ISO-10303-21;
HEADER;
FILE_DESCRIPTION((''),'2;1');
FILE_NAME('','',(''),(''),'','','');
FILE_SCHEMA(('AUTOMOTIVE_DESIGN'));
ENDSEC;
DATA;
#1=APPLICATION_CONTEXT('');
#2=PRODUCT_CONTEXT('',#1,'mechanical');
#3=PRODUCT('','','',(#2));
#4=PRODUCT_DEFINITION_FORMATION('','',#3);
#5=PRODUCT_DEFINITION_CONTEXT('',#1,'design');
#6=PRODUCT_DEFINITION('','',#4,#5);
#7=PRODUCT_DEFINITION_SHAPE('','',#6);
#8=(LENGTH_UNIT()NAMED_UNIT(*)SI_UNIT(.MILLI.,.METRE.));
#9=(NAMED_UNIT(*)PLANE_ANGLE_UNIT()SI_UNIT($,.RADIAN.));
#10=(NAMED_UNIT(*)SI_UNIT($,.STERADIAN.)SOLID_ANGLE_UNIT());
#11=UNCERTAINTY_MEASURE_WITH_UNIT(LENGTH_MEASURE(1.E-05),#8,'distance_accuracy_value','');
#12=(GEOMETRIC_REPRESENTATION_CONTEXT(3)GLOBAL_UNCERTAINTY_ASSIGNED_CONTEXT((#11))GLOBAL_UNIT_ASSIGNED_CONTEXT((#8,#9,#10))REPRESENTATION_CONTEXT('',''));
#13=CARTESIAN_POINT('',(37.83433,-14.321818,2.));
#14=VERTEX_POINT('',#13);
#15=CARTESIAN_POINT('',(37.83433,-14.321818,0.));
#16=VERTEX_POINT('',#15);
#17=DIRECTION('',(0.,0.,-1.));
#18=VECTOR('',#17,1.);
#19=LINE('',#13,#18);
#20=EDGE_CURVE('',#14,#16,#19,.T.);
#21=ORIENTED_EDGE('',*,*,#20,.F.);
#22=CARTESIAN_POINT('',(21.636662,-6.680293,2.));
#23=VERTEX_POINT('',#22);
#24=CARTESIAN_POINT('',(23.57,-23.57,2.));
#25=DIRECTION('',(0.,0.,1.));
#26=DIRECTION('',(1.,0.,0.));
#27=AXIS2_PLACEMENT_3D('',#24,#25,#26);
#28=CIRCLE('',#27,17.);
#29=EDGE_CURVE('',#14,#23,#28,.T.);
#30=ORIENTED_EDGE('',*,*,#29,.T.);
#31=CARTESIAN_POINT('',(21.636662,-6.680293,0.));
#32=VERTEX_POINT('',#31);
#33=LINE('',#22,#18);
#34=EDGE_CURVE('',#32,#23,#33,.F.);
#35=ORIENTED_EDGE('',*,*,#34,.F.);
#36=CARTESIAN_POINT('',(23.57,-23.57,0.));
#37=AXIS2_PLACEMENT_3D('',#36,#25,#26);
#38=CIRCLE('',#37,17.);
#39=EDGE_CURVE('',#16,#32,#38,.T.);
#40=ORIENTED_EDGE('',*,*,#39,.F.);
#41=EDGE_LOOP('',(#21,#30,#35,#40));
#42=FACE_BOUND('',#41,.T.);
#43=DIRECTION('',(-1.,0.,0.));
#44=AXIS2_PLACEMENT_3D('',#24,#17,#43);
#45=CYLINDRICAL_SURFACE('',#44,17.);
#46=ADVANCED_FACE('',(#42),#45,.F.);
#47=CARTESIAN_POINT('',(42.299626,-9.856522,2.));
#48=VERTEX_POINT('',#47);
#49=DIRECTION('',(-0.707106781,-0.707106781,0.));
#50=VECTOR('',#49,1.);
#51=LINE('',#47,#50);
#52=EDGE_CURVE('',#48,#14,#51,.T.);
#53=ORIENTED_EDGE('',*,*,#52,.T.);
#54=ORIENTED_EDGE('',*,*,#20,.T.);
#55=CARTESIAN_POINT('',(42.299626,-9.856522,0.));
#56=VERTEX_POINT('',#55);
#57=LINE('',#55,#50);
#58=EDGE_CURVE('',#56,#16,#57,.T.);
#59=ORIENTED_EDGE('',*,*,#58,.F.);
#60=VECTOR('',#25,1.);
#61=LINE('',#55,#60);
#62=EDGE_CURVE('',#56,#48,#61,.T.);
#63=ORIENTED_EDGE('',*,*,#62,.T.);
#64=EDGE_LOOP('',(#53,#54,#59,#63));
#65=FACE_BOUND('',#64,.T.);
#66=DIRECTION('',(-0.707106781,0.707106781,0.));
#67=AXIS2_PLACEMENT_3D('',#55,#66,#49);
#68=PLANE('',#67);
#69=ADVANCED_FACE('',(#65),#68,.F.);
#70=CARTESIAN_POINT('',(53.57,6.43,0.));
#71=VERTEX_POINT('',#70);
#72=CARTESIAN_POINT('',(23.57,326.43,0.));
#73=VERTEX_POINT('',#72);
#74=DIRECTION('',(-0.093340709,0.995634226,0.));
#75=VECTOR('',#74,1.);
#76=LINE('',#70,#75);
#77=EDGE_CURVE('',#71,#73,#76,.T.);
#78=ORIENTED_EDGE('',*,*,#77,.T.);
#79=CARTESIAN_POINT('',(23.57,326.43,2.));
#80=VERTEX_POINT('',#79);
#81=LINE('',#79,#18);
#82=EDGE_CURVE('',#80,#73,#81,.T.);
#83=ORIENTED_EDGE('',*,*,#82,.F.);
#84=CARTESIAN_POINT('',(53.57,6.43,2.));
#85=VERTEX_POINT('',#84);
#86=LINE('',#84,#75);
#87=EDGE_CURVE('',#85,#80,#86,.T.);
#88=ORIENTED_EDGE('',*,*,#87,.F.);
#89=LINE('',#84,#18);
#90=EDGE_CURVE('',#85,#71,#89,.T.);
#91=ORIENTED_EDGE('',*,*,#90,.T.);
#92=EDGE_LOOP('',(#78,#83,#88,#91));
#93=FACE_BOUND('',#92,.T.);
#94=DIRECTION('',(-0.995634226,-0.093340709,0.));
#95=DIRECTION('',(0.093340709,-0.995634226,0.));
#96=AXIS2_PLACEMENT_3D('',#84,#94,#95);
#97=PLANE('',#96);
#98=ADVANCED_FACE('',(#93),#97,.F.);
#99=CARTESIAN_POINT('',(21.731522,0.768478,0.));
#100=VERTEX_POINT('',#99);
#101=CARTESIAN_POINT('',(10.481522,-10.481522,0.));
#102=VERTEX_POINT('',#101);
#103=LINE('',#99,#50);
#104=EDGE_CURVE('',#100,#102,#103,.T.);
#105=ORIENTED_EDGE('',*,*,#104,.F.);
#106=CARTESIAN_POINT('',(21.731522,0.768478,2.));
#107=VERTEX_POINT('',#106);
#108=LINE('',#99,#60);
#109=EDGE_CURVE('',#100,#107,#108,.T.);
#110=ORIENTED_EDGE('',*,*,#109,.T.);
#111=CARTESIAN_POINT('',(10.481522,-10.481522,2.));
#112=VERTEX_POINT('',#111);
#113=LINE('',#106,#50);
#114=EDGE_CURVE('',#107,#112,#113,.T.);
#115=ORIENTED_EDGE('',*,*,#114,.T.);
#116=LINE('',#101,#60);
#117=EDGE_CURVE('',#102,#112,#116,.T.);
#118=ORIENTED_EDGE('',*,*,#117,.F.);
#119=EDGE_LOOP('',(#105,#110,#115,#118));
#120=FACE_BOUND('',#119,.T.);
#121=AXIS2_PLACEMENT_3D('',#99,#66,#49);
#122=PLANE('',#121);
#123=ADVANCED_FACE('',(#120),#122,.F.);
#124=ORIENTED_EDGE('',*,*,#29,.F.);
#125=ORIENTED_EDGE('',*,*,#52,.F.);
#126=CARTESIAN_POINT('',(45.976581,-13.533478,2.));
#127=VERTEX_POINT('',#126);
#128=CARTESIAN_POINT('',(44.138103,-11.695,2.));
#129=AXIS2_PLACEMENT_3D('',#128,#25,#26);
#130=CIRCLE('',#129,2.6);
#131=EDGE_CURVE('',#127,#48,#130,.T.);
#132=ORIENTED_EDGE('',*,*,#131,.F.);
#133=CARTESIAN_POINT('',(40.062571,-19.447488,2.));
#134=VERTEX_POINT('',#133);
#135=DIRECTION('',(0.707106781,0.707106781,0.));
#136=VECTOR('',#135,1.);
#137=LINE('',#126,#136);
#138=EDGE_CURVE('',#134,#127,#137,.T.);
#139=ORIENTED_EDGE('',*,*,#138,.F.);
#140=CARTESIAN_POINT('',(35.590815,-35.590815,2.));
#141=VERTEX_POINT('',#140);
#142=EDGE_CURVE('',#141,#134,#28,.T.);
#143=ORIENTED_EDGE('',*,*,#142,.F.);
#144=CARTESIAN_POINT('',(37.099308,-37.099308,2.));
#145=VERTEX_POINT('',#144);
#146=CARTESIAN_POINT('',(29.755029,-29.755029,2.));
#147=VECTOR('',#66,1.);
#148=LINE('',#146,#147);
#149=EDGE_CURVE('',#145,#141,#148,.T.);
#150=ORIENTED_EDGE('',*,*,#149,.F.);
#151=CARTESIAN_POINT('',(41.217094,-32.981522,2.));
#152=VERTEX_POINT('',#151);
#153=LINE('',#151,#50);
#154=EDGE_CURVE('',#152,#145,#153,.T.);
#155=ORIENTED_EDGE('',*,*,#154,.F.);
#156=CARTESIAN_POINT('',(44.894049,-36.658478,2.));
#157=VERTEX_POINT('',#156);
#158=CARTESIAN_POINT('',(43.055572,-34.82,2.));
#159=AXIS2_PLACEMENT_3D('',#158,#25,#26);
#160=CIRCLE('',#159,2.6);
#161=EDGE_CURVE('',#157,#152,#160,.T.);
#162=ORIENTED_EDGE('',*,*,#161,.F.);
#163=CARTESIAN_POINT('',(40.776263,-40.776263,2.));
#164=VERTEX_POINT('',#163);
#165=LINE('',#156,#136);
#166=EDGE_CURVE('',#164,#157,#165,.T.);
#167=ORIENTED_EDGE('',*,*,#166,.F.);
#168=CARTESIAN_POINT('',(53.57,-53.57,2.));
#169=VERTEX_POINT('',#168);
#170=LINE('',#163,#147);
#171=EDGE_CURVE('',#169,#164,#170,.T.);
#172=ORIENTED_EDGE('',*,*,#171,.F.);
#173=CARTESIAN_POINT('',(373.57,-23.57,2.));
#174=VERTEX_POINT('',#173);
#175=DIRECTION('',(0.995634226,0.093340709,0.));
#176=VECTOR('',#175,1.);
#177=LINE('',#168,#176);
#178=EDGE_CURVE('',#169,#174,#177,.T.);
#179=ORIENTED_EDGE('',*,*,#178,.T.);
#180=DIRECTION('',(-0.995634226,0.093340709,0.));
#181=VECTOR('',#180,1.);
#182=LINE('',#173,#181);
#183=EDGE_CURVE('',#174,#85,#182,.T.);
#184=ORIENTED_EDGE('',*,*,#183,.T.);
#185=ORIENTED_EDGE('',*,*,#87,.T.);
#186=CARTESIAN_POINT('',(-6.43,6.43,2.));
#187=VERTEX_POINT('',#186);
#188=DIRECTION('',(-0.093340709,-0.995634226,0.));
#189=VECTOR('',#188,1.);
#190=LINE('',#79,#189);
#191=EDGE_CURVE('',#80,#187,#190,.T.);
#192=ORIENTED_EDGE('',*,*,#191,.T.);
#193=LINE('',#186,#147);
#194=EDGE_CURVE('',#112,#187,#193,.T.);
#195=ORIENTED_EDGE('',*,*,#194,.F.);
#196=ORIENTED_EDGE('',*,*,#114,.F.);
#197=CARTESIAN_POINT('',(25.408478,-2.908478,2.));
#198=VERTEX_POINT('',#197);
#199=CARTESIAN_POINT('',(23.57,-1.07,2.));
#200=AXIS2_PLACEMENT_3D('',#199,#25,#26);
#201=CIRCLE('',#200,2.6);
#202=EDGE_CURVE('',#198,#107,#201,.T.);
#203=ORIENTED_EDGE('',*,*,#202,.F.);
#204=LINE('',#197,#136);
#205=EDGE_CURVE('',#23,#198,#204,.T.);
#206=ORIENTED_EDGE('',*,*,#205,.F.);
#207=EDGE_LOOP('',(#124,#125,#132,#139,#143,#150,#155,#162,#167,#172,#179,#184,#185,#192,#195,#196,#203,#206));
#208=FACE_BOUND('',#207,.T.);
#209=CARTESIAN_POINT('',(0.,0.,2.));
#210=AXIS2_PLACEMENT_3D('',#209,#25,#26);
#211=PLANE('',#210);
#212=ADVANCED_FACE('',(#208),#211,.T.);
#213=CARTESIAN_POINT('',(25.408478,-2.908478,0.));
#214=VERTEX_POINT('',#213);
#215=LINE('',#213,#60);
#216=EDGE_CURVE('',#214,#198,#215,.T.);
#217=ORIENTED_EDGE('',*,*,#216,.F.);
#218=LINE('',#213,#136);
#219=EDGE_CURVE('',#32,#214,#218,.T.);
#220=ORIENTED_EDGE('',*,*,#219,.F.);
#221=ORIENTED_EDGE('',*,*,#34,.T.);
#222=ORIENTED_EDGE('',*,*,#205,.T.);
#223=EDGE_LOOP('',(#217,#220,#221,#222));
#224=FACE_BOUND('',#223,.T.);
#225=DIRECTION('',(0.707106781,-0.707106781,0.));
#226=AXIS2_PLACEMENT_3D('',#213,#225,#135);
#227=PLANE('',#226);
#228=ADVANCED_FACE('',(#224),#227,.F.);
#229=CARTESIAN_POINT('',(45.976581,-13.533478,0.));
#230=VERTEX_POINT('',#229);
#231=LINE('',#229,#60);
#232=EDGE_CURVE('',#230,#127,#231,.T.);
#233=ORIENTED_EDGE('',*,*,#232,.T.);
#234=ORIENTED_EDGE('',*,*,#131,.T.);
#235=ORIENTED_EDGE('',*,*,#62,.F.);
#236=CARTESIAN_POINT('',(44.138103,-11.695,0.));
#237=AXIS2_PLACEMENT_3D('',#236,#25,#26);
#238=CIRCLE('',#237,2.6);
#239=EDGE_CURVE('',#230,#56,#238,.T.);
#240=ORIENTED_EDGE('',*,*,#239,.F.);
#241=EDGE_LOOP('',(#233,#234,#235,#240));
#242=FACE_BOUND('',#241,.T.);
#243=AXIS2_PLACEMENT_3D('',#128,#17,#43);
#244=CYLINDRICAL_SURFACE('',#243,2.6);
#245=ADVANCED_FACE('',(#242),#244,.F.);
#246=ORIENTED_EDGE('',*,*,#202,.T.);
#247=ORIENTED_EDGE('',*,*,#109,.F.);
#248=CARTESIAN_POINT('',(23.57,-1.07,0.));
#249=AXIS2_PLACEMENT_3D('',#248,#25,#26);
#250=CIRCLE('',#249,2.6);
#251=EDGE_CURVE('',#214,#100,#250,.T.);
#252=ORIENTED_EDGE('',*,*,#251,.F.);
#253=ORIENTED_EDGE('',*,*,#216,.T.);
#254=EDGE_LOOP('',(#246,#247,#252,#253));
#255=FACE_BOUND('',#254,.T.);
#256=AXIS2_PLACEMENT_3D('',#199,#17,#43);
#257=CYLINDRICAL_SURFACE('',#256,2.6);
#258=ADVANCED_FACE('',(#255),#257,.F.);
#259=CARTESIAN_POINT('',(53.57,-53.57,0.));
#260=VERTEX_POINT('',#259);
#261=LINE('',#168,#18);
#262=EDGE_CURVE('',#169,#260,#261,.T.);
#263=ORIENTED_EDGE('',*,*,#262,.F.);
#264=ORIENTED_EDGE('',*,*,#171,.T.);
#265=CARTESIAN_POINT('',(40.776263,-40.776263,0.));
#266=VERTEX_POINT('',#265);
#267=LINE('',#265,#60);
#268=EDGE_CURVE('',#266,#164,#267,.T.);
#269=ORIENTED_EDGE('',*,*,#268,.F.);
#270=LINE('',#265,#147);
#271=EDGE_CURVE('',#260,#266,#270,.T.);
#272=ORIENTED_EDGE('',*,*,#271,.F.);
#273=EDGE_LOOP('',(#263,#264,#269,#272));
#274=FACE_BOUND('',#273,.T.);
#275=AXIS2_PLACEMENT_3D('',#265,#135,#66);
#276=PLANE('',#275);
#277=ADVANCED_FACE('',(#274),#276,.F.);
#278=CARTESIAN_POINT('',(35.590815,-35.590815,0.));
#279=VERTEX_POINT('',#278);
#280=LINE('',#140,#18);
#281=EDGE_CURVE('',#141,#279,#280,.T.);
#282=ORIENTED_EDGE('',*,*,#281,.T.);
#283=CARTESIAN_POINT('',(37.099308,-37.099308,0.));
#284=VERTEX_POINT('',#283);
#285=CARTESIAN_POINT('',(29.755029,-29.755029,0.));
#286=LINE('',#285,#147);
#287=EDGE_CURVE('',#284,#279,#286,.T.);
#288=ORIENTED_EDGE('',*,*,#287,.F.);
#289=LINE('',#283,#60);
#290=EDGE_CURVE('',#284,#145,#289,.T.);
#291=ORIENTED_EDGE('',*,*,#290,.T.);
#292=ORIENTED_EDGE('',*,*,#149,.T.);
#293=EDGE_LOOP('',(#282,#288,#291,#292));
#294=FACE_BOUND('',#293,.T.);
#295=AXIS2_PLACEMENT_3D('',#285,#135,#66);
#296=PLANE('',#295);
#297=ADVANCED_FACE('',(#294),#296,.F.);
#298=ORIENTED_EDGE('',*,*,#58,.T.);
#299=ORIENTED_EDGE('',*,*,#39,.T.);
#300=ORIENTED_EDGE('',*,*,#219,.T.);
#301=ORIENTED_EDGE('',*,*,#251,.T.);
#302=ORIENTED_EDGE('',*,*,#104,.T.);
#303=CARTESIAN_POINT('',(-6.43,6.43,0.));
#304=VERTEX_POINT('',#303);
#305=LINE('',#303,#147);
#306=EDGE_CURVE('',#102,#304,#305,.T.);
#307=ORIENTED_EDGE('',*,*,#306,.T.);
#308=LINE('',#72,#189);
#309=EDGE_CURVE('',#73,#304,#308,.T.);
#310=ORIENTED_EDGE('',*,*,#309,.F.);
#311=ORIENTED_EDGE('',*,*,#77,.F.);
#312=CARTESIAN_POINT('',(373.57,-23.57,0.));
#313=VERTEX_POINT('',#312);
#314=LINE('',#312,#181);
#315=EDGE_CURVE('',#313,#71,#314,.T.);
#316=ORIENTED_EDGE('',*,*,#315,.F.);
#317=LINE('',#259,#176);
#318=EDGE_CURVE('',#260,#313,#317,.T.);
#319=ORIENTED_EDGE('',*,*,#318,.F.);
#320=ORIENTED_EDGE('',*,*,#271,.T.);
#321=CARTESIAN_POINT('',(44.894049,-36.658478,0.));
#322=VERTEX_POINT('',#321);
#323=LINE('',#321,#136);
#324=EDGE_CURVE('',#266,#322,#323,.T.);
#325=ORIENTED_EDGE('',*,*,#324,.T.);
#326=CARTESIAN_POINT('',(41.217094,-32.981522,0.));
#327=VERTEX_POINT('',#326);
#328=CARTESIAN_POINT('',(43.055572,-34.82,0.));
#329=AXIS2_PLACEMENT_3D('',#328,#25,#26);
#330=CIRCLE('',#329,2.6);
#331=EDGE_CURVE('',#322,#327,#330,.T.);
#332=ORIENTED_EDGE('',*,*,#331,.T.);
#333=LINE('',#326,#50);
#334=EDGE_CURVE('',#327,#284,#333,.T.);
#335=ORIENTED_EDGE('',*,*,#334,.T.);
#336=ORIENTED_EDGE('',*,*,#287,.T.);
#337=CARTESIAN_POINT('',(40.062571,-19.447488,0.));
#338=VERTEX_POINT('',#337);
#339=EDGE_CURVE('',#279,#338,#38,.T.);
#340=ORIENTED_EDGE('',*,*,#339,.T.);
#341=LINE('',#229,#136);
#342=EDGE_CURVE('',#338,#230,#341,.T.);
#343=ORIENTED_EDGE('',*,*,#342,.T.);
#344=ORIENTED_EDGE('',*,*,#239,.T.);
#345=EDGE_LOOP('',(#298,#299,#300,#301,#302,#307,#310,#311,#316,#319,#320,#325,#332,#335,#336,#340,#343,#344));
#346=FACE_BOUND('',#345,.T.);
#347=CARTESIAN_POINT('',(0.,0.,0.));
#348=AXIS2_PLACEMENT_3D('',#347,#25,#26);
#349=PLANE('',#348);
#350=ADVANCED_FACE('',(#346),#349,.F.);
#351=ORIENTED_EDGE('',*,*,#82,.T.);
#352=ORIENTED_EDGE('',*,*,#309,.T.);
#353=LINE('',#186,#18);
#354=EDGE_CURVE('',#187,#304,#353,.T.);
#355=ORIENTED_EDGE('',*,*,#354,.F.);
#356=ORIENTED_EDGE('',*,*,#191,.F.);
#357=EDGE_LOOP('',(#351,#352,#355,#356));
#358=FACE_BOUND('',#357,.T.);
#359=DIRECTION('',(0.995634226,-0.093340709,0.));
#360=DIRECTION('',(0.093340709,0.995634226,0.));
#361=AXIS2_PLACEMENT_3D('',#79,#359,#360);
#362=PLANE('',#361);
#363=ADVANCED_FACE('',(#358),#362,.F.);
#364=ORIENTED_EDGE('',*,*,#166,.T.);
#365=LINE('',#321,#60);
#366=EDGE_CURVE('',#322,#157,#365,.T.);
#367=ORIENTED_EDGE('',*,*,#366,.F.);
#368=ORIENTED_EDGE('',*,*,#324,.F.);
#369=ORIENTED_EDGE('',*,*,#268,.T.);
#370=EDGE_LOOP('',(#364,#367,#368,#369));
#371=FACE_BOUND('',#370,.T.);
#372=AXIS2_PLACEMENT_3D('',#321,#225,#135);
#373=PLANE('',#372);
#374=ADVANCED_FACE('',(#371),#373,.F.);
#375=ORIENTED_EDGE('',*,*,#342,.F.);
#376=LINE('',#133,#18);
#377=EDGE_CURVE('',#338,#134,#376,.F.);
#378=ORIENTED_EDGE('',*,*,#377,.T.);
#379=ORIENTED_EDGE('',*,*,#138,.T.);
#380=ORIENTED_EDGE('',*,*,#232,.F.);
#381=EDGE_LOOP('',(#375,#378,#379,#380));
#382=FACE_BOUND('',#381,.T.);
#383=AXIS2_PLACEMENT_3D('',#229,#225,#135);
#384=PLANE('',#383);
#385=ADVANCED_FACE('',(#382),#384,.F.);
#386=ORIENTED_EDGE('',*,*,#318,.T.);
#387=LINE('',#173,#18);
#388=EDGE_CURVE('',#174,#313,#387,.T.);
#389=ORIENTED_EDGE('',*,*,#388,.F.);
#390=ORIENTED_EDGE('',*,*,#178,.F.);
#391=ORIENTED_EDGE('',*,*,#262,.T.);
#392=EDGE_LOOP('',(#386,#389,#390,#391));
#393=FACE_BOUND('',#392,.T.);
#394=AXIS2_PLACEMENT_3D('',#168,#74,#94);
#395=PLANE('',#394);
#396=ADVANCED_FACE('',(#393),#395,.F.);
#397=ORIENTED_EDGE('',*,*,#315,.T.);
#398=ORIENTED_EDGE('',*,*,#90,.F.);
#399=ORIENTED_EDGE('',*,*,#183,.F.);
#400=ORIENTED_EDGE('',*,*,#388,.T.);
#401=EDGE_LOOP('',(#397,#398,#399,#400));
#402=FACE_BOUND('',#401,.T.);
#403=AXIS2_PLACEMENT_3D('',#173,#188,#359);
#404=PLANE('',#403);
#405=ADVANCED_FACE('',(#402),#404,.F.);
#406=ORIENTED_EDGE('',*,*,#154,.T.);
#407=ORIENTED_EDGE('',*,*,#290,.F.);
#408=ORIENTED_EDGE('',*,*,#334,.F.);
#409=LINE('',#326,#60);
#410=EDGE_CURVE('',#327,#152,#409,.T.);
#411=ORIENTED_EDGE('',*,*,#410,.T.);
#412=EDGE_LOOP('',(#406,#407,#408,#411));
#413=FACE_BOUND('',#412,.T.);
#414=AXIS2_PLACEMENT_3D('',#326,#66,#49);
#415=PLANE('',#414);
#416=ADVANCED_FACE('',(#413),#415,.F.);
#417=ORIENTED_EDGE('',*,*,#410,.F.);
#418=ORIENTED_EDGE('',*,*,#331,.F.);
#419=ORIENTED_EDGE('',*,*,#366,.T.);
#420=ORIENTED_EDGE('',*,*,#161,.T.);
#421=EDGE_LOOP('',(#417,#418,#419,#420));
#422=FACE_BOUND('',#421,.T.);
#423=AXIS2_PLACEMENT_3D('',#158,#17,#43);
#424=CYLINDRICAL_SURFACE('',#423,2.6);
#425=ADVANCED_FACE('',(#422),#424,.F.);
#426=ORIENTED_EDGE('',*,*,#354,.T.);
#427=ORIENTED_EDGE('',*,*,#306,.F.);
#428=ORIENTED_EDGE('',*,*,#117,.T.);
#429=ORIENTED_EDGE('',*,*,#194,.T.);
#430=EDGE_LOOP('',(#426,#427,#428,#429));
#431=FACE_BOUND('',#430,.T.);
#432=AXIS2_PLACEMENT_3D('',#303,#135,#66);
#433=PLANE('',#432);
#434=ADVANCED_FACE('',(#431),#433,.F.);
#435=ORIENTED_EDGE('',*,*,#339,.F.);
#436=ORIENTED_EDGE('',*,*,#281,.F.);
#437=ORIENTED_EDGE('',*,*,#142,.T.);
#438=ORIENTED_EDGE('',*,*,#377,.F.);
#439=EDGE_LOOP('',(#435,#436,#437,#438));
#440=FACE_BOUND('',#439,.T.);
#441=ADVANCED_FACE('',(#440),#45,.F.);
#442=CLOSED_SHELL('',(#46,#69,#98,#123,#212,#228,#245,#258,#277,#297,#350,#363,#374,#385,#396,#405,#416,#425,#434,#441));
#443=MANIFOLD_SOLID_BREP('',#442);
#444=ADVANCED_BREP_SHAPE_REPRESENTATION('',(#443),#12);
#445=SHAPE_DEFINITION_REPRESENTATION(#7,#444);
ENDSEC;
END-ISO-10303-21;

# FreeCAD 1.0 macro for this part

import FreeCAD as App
import Part
import Sketcher
from FreeCAD import Vector
Q = App.Units.Quantity


def add_polygon(sketch, points):
    """Adds a closed chain of lines whose ends are joined by coincident constraints."""
    first, n = sketch.GeometryCount, len(points)
    for a, b in zip(points, points[1:] + points[:1]):
        sketch.addGeometry(Part.LineSegment(App.Vector(*a, 0), App.Vector(*b, 0)), False)
    for i in range(n):
        sketch.addConstraint(Sketcher.Constraint("Coincident", first + i, 2, first + (i + 1) % n, 1))

doc = App.newDocument("Part")
body = doc.addObject("PartDesign::Body", "Body")

# Sketch on XY plane
sketch1 = body.newObject("Sketcher::SketchObject", "Sketch")
sketch1.AttachmentSupport = (doc.getObject("XY_Plane"), [""])
sketch1.MapMode = "FlatFace"
add_polygon(sketch1, [(53.6, -53.6), (373.6, -23.6), (53.6, 6.4), (23.6, 326.4), (-6.4, 6.4), (-6.4, -53.6)])  # lines 0-5
sketch1.addGeometry(Part.Circle(Vector(4.1, -34.8, 0), Vector(0, 0, 1), 2.6), False)  # 6
sketch1.addGeometry(Part.Circle(Vector(23.6, -47.3, 0), Vector(0, 0, 1), 2.6), False)  # 7
sketch1.addGeometry(Part.Circle(Vector(43.1, -34.8, 0), Vector(0, 0, 1), 2.6), False)  # 8
sketch1.addGeometry(Part.Circle(Vector(3, -11.7, 0), Vector(0, 0, 1), 2.6), False)  # 9
sketch1.addGeometry(Part.Circle(Vector(23.6, -23.6, 0), Vector(0, 0, 1), 17), False)  # 10
sketch1.addGeometry(Part.Circle(Vector(44.1, -11.7, 0), Vector(0, 0, 1), 2.6), False)  # 11
sketch1.addGeometry(Part.Circle(Vector(23.6, -1.1, 0), Vector(0, 0, 1), 2.6), False)  # 12
sketch1.addConstraint([
    Sketcher.Constraint("Vertical", 4),
    Sketcher.Constraint("Horizontal", 5),
    Sketcher.Constraint("Equal", 6, 7),
    Sketcher.Constraint("Equal", 7, 8),
    Sketcher.Constraint("Equal", 8, 9),
    Sketcher.Constraint("Equal", 9, 11),
    Sketcher.Constraint("Equal", 11, 12),
    Sketcher.Constraint("Perpendicular", 0, 2),
    Sketcher.Constraint("Perpendicular", 1, 3),
    Sketcher.Constraint("Horizontal", 6, 3, 8, 3),
    Sketcher.Constraint("Horizontal", 9, 3, 11, 3),
    Sketcher.Constraint("Horizontal", 10, 3, 0, 2),
    Sketcher.Constraint("Horizontal", 1, 2, 3, 2),
    Sketcher.Constraint("Vertical", 7, 3, 10, 3),
    Sketcher.Constraint("Vertical", 10, 3, 12, 3),
    Sketcher.Constraint("Vertical", 12, 3, 2, 2),
    Sketcher.Constraint("Vertical", 1, 2, 5, 2),
    Sketcher.Constraint("Equal", 5, 4),
    Sketcher.Constraint("Equal", 0, 1),
    Sketcher.Constraint("Diameter", 10, Q("34 mm")),
    Sketcher.Constraint("Diameter", 6, Q("5.2 mm")),
    Sketcher.Constraint("DistanceX", 5, 1, 5, 2, Q("60 mm")),
    Sketcher.Constraint("DistanceX", 10, 3, 0, 2, Q("350 mm")),
    Sketcher.Constraint("DistanceY", 7, 3, 6, 3, Q("12.5 mm")),
    Sketcher.Constraint("DistanceY", 10, 3, 12, 3, Q("22.5 mm")),
    Sketcher.Constraint("DistanceY", 6, 3, -1, 1, Q("34.82 mm")),
    Sketcher.Constraint("DistanceX", -1, 1, 7, 3, Q("23.57 mm")),
    Sketcher.Constraint("DistanceY", 10, 3, -1, 1, Q("23.57 mm")),
    Sketcher.Constraint("DistanceY", 9, 3, -1, 1, Q("11.695 mm")),
    Sketcher.Constraint("DistanceX", -1, 1, 6, 3, Q("4.084428 mm")),
    Sketcher.Constraint("DistanceX", -1, 1, 8, 3, Q("43.055572 mm")),
    Sketcher.Constraint("DistanceX", 9, 3, 6, 3, Q("1.082532 mm")),
    Sketcher.Constraint("DistanceX", 8, 3, 11, 3, Q("1.082532 mm")),
])
pad1 = body.newObject("PartDesign::Pad", "Pad")
pad1.Profile = sketch1
pad1.Length = 2

# Sketch on XY plane
sketch2 = body.newObject("Sketcher::SketchObject", "Sketch001")
sketch2.AttachmentSupport = (doc.getObject("XY_Plane"), [""])
sketch2.MapMode = "FlatFace"
sketch2.AttachmentOffset = App.Placement(Vector(0, 0, 2), App.Rotation())
add_polygon(sketch2, [(-6, -54), (54, -54), (41, -41), (45, -37), (41, -33), (37, -37), (30, -30), (46, -14), (42, -10), (26, -26), (14, -14), (25, -3), (22, 1), (10, -10), (-6, 6)])  # lines 0-14
sketch2.addConstraint([
    Sketcher.Constraint("Horizontal", 0),
    Sketcher.Constraint("Vertical", 14),
    Sketcher.Constraint("Perpendicular", 1, 2),
    Sketcher.Constraint("Perpendicular", 2, 3),
    Sketcher.Constraint("Perpendicular", 3, 4),
    Sketcher.Constraint("Perpendicular", 4, 5),
    Sketcher.Constraint("Perpendicular", 5, 6),
    Sketcher.Constraint("Perpendicular", 6, 7),
    Sketcher.Constraint("Perpendicular", 7, 8),
    Sketcher.Constraint("Perpendicular", 8, 9),
    Sketcher.Constraint("Perpendicular", 9, 10),
    Sketcher.Constraint("Perpendicular", 10, 11),
    Sketcher.Constraint("Perpendicular", 11, 12),
    Sketcher.Constraint("Perpendicular", 12, 13),
    Sketcher.Constraint("Equal", 0, 14),
    Sketcher.Constraint("Equal", 2, 4),
    Sketcher.Constraint("Equal", 3, 7),
    Sketcher.Constraint("Equal", 6, 8),
    Sketcher.Constraint("Equal", 7, 11),
    Sketcher.Constraint("Equal", 10, 12),
    Sketcher.Constraint("DistanceX", 0, 1, 0, 2, Q("60 mm")),
    Sketcher.Constraint("Distance", 3, Q("5.2 mm")),
    Sketcher.Constraint("DistanceX", -1, 1, 0, 2, Q("53.57 mm")),
    Sketcher.Constraint("DistanceY", 0, 2, -1, 1, Q("53.57 mm")),
    Sketcher.Constraint("DistanceX", 9, 2, 10, 2, Q("11.25 mm")),
    Sketcher.Constraint("DistanceY", 2, 2, 6, 2, Q("23.125 mm")),
    Sketcher.Constraint("DistanceY", 9, 2, 6, 2, Q("0.625 mm")),
    Sketcher.Constraint("Distance", 2, Q("5.823429 mm")),
    Sketcher.Constraint("Distance", 5, Q("10.386379 mm")),
    Sketcher.Constraint("DistanceX", -1, 1, 2, 2, Q("44.894049 mm")),
])
pocket1 = body.newObject("PartDesign::Pocket", "Pocket")
pocket1.Profile = sketch2
pocket1.Length = 2

doc.recompute()
